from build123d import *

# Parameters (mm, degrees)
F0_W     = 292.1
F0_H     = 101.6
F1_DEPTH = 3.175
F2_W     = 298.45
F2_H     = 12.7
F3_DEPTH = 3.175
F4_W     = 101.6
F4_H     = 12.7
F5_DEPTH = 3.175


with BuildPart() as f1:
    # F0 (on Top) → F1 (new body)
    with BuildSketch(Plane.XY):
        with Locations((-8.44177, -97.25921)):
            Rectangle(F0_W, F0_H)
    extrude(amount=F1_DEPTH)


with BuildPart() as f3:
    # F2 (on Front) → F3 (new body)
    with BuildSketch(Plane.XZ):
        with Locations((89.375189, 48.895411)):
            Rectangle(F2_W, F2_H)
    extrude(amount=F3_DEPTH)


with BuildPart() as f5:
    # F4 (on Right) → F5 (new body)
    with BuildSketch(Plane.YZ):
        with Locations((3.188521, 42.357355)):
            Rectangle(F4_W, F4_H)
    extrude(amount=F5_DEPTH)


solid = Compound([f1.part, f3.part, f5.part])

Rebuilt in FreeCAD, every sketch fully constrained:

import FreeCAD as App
import Part
import Sketcher

V = App.Vector
Q = App.Units.Quantity


def add_polygon(sketch, points):
    """Adds a closed chain of lines whose ends are joined by coincident constraints."""
    first, n = sketch.GeometryCount, len(points)
    for a, b in zip(points, points[1:] + points[:1]):
        sketch.addGeometry(Part.LineSegment(App.Vector(*a, 0), App.Vector(*b, 0)), False)
    for i in range(n):
        sketch.addConstraint(Sketcher.Constraint("Coincident", first + i, 2, first + (i + 1) % n, 1))

doc = App.newDocument("Part")
body = doc.addObject("PartDesign::Body", "Body")

# Sketch on XY plane
sketch1 = body.newObject("Sketcher::SketchObject", "Sketch")
sketch1.AttachmentSupport = (doc.getObject("XY_Plane"), [""])
sketch1.MapMode = "FlatFace"
add_polygon(sketch1, [(-154, -46), (-154, -148), (138, -148), (138, -46)])  # lines 0-3
sketch1.addConstraint([
    Sketcher.Constraint("Vertical", 0),
    Sketcher.Constraint("Horizontal", 1),
    Sketcher.Constraint("Vertical", 2),
    Sketcher.Constraint("Horizontal", 3),
    Sketcher.Constraint("DistanceY", 0, 2, 0, 1, Q("4 in")),
    Sketcher.Constraint("DistanceX", 1, 1, 1, 2, Q("11.5 in")),
    Sketcher.Constraint("DistanceX", 0, 2, -1, 1, 154.49177),
    Sketcher.Constraint("DistanceY", 0, 2, -1, 1, 148.05921),
])
pad1 = body.newObject("PartDesign::Pad", "Pad")
pad1.Profile = sketch1
pad1.Length = Q("0.125 in")
body2 = doc.addObject("PartDesign::Body", "Body001")

# Sketch on XZ plane
sketch2 = body2.newObject("Sketcher::SketchObject", "Sketch001")
sketch2.AttachmentSupport = (doc.getObject("XZ_Plane001"), [""])
sketch2.MapMode = "FlatFace"
add_polygon(sketch2, [(-60, 55), (-60, 43), (239, 43), (239, 55)])  # lines 0-3
sketch2.addConstraint([
    Sketcher.Constraint("Vertical", 0),
    Sketcher.Constraint("Horizontal", 1),
    Sketcher.Constraint("Vertical", 2),
    Sketcher.Constraint("Horizontal", 3),
    Sketcher.Constraint("DistanceY", 0, 2, 0, 1, Q("0.5 in")),
    Sketcher.Constraint("DistanceX", 1, 1, 1, 2, Q("11.75 in")),
    Sketcher.Constraint("DistanceX", 0, 2, -1, 1, 59.849811),
    Sketcher.Constraint("DistanceY", -1, 1, 0, 2, 42.545411),
])
pad2 = body2.newObject("PartDesign::Pad", "Pad001")
pad2.Profile = sketch2
pad2.Length = Q("0.125 in")
body3 = doc.addObject("PartDesign::Body", "Body002")

# Sketch on YZ plane
sketch3 = body3.newObject("Sketcher::SketchObject", "Sketch002")
sketch3.AttachmentSupport = (doc.getObject("YZ_Plane002"), [""])
sketch3.MapMode = "FlatFace"
add_polygon(sketch3, [(-48, 49), (-48, 36), (54, 36), (54, 49)])  # lines 0-3
sketch3.addConstraint([
    Sketcher.Constraint("Vertical", 0),
    Sketcher.Constraint("Horizontal", 1),
    Sketcher.Constraint("Vertical", 2),
    Sketcher.Constraint("Horizontal", 3),
    Sketcher.Constraint("DistanceX", 1, 1, 1, 2, Q("4 in")),
    Sketcher.Constraint("DistanceY", 0, 2, 0, 1, Q("0.5 in")),
    Sketcher.Constraint("DistanceX", 0, 2, -1, 1, 47.611479),
    Sketcher.Constraint("DistanceY", -1, 1, 0, 2, 36.007355),
])
pad3 = body3.newObject("PartDesign::Pad", "Pad002")
pad3.Profile = sketch3
pad3.Length = Q("0.125 in")

doc.recompute()
